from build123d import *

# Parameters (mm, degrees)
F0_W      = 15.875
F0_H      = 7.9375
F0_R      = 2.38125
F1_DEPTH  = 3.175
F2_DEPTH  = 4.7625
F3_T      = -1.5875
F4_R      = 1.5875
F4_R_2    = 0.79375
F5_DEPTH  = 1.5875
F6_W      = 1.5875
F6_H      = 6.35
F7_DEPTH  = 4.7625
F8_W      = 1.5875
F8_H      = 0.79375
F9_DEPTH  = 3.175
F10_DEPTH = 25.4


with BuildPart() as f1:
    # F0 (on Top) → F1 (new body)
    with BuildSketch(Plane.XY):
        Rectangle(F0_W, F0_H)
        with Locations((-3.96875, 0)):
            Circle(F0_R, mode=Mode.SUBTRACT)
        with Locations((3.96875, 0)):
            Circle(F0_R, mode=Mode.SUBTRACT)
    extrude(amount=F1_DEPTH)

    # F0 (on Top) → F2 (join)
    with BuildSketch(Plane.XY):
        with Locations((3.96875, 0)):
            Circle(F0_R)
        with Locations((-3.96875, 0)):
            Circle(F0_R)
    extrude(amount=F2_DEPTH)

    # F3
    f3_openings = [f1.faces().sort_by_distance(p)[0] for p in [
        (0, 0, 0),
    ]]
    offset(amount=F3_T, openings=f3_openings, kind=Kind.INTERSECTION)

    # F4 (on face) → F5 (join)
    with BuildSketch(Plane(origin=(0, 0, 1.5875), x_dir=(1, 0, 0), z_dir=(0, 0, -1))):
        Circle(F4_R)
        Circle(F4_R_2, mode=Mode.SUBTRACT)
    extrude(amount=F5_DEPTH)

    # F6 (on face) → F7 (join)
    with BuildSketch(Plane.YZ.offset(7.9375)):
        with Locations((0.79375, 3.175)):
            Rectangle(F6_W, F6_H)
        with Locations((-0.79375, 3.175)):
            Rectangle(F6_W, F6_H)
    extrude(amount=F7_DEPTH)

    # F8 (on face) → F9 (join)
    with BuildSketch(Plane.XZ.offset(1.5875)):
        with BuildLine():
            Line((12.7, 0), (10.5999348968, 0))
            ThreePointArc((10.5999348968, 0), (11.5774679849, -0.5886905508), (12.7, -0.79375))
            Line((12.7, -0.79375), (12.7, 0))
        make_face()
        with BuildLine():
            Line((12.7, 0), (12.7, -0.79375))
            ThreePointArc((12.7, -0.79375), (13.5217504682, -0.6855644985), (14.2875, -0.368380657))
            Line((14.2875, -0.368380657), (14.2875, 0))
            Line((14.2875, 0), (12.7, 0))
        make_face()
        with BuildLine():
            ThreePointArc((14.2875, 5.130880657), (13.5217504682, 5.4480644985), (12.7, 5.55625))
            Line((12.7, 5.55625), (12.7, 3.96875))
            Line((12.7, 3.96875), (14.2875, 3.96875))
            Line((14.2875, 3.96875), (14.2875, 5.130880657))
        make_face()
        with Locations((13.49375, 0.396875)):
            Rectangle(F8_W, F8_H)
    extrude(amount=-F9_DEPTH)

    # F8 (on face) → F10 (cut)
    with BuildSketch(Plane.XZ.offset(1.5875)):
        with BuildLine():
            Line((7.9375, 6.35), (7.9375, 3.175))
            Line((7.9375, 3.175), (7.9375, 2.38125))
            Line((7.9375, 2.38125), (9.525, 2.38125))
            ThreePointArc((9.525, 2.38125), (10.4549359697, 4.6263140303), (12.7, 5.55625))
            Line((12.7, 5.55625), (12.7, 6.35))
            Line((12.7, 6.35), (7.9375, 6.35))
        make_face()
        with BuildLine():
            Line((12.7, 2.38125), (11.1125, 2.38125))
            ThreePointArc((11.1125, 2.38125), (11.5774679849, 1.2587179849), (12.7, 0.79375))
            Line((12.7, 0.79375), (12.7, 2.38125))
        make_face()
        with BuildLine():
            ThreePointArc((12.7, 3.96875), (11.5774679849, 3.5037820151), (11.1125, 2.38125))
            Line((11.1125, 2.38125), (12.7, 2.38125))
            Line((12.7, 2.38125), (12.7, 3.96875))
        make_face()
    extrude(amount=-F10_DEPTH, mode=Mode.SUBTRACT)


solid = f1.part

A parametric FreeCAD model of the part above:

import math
import FreeCAD as App
import Part
import Sketcher

V = App.Vector
Q = App.Units.Quantity


def faces_at(feature, points):
    """Names of the faces that lie closest to the given points."""
    faces = feature.Shape.Faces
    near = lambda p: min(range(len(faces)), key=lambda i: faces[i].distToShape(Part.Vertex(*p))[0])
    return sorted({f"Face{near(p) + 1}" for p in points})


def add_polygon(sketch, points):
    """Adds a closed chain of lines whose ends are joined by coincident constraints."""
    first, n = sketch.GeometryCount, len(points)
    for a, b in zip(points, points[1:] + points[:1]):
        sketch.addGeometry(Part.LineSegment(App.Vector(*a, 0), App.Vector(*b, 0)), False)
    for i in range(n):
        sketch.addConstraint(Sketcher.Constraint("Coincident", first + i, 2, first + (i + 1) % n, 1))

doc = App.newDocument("Part")
body = doc.addObject("PartDesign::Body", "Body")

sketch1 = body.newObject("Sketcher::SketchObject", "Sketch")
sketch1.AttachmentSupport = (doc.getObject("XY_Plane"), [""])
sketch1.MapMode = "FlatFace"
add_polygon(sketch1, [(-7.9, 4), (-7.9, -4), (7.9, -4), (7.9, 4)])
sketch1.addGeometry(Part.Circle(V(-4, 0, 0), V(0, 0, 1), 2.4), False)
sketch1.addGeometry(Part.Circle(V(4, 0, 0), V(0, 0, 1), 2.4), False)
sketch1.addConstraint(Sketcher.Constraint("Vertical", 0))
sketch1.addConstraint(Sketcher.Constraint("Horizontal", 1))
sketch1.addConstraint(Sketcher.Constraint("Vertical", 2))
sketch1.addConstraint(Sketcher.Constraint("Horizontal", 3))
sketch1.addConstraint(Sketcher.Constraint("Equal", 4, 5))
sketch1.addConstraint(Sketcher.Constraint("Symmetric", 4, 3, 5, 3, -1, 1))
sketch1.addConstraint(Sketcher.Constraint("Symmetric", 0, 2, 2, 2, -1, 1))
sketch1.addConstraint(Sketcher.Constraint("PointOnObject", 4, 3, -1))
sketch1.addConstraint(Sketcher.Constraint("Diameter", 4, Q("0.1875 in")))
sketch1.addConstraint(Sketcher.Constraint("DistanceX", 1, 1, 1, 2, Q("0.625 in")))
sketch1.addConstraint(Sketcher.Constraint("DistanceY", 0, 2, 0, 1, Q("0.3125 in")))
sketch1.addConstraint(Sketcher.Constraint("DistanceX", 4, 3, -1, 1, Q("0.15625 in")))
pad1 = body.newObject("PartDesign::Pad", "Pad")
pad1.Profile = sketch1
pad1.Length = Q("0.125 in")

sketch2 = body.newObject("Sketcher::SketchObject", "Sketch001")
sketch2.AttachmentSupport = (doc.getObject("XY_Plane"), [""])
sketch2.MapMode = "FlatFace"
sketch2.addGeometry(Part.Circle(V(4, 0, 0), V(0, 0, 1), 2.4), False)
sketch2.addGeometry(Part.Circle(V(-4, 0, 0), V(0, 0, 1), 2.4), False)
sketch2.addConstraint(Sketcher.Constraint("Equal", 0, 1))
sketch2.addConstraint(Sketcher.Constraint("Symmetric", 0, 3, 1, 3, -1, 1))
sketch2.addConstraint(Sketcher.Constraint("PointOnObject", 0, 3, -1))
sketch2.addConstraint(Sketcher.Constraint("Diameter", 0, Q("0.1875 in")))
sketch2.addConstraint(Sketcher.Constraint("DistanceX", -1, 1, 0, 3, Q("0.15625 in")))
pad2 = body.newObject("PartDesign::Pad", "Pad001")
pad2.Profile = sketch2
pad2.Length = Q("0.1875 in")
doc.recompute()

thickness = body.newObject("PartDesign::Thickness", "Thickness")
thickness.Base = (pad2, faces_at(pad2, [(0, 0, 0)]))
thickness.Value = Q("0.0625 in")
thickness.Reversed = True
thickness.Join = "Intersection"

sketch3 = body.newObject("Sketcher::SketchObject", "Sketch002")
sketch3.AttachmentSupport = (doc.getObject("XY_Plane"), [""])
sketch3.MapMode = "FlatFace"
sketch3.AttachmentOffset = App.Placement(V(0, 0, 0.0625 * 25.4), App.Rotation())
sketch3.addGeometry(Part.Circle(V(0, 0, 0), V(0, 0, 1), 1.6), False)
sketch3.addGeometry(Part.Circle(V(0, 0, 0), V(0, 0, 1), 0.8), False)
sketch3.addConstraint(Sketcher.Constraint("Coincident", 0, 3, -1, 1))
sketch3.addConstraint(Sketcher.Constraint("Coincident", 1, 3, -1, 1))
sketch3.addConstraint(Sketcher.Constraint("Diameter", 0, Q("0.125 in")))
sketch3.addConstraint(Sketcher.Constraint("Diameter", 1, Q("0.0625 in")))
pad3 = body.newObject("PartDesign::Pad", "Pad002")
pad3.Profile = sketch3
pad3.Length = Q("0.0625 in")
pad3.Reversed = True

sketch4 = body.newObject("Sketcher::SketchObject", "Sketch003")
sketch4.AttachmentSupport = (doc.getObject("YZ_Plane"), [""])
sketch4.MapMode = "FlatFace"
sketch4.AttachmentOffset = App.Placement(V(0, 0, 0.3125 * 25.4), App.Rotation())
add_polygon(sketch4, [(1.6, 0), (1.6, 6.3), (-1.6, 6.3), (-1.6, 0)])
sketch4.addConstraint(Sketcher.Constraint("Vertical", 0))
sketch4.addConstraint(Sketcher.Constraint("Horizontal", 1))
sketch4.addConstraint(Sketcher.Constraint("Vertical", 2))
sketch4.addConstraint(Sketcher.Constraint("Horizontal", 3))
sketch4.addConstraint(Sketcher.Constraint("Symmetric", 2, 2, 3, 2, -1, 1))
sketch4.addConstraint(Sketcher.Constraint("DistanceY", 0, 1, 0, 2, Q("0.25 in")))
sketch4.addConstraint(Sketcher.Constraint("DistanceX", 1, 2, 1, 1, Q("0.125 in")))
pad4 = body.newObject("PartDesign::Pad", "Pad003")
pad4.Profile = sketch4
pad4.Length = Q("0.1875 in")

sketch5 = body.newObject("Sketcher::SketchObject", "Sketch004")
sketch5.AttachmentSupport = (doc.getObject("XZ_Plane"), [""])
sketch5.MapMode = "FlatFace"
sketch5.AttachmentOffset = App.Placement(V(0, 0, 0.0625 * 25.4), App.Rotation())
sketch5.addGeometry(Part.ArcOfCircle(Part.Circle(V(12.7, 2.4, 0), V(0, 0, 1), 3.2), math.radians(-131), math.radians(-90)), False)
sketch5.addGeometry(Part.ArcOfCircle(Part.Circle(V(12.7, 2.4, 0), V(0, 0, 1), 3.2), math.radians(-90), math.radians(-60)), False)
sketch5.addGeometry(Part.LineSegment(V(14.3, -0.4, 0), V(14.3, 0.8, 0)), False)
sketch5.addGeometry(Part.LineSegment(V(14.3, 0.8, 0), V(12.7, 0.8, 0)), False)
sketch5.addGeometry(Part.LineSegment(V(12.7, 0.8, 0), V(12.7, 0, 0)), False)
sketch5.addGeometry(Part.LineSegment(V(12.7, 0, 0), V(10.6, 0, 0)), False)
sketch5.addGeometry(Part.ArcOfCircle(Part.Circle(V(12.7, 2.4, 0), V(0, 0, 1), 3.2), math.radians(60), math.radians(90)), False)
sketch5.addGeometry(Part.LineSegment(V(12.7, 5.6, 0), V(12.7, 4, 0)), False)
sketch5.addGeometry(Part.LineSegment(V(12.7, 4, 0), V(14.3, 4, 0)), False)
sketch5.addGeometry(Part.LineSegment(V(14.3, 4, 0), V(14.3, 5.1, 0)), False)
sketch5.addConstraint(Sketcher.Constraint("Tangent", 0, 2, 1, 1))
sketch5.addConstraint(Sketcher.Constraint("Coincident", 1, 2, 2, 1))
sketch5.addConstraint(Sketcher.Constraint("Coincident", 2, 2, 3, 1))
sketch5.addConstraint(Sketcher.Constraint("Coincident", 3, 2, 4, 1))
sketch5.addConstraint(Sketcher.Constraint("Coincident", 4, 2, 5, 1))
sketch5.addConstraint(Sketcher.Constraint("Coincident", 5, 2, 0, 1))
sketch5.addConstraint(Sketcher.Constraint("Coincident", 6, 2, 7, 1))
sketch5.addConstraint(Sketcher.Constraint("Coincident", 7, 2, 8, 1))
sketch5.addConstraint(Sketcher.Constraint("Coincident", 8, 2, 9, 1))
sketch5.addConstraint(Sketcher.Constraint("Coincident", 9, 2, 6, 1))
sketch5.addConstraint(Sketcher.Constraint("Vertical", 2))
sketch5.addConstraint(Sketcher.Constraint("Horizontal", 3))
sketch5.addConstraint(Sketcher.Constraint("Vertical", 4))
sketch5.addConstraint(Sketcher.Constraint("Horizontal", 5))
sketch5.addConstraint(Sketcher.Constraint("Vertical", 7))
sketch5.addConstraint(Sketcher.Constraint("Horizontal", 8))
sketch5.addConstraint(Sketcher.Constraint("Vertical", 9))
sketch5.addConstraint(Sketcher.Constraint("Coincident", 6, 3, 0, 3))
sketch5.addConstraint(Sketcher.Constraint("Equal", 0, 1))
sketch5.addConstraint(Sketcher.Constraint("Equal", 1, 6))
sketch5.addConstraint(Sketcher.Constraint("Symmetric", 0, 2, 3, 2, -1))
sketch5.addConstraint(Sketcher.Constraint("PointOnObject", 4, 2, -1))
sketch5.addConstraint(Sketcher.Constraint("Vertical", 6, 3, 0, 2))
sketch5.addConstraint(Sketcher.Constraint("Vertical", 4, 2, 6, 2))
sketch5.addConstraint(Sketcher.Constraint("Vertical", 2, 2, 8, 2))
sketch5.addConstraint(Sketcher.Constraint("Equal", 8, 7))
sketch5.addConstraint(Sketcher.Constraint("Equal", 2, 9))
sketch5.addConstraint(Sketcher.Constraint("Radius", 0, Q("0.125 in")))
sketch5.addConstraint(Sketcher.Constraint("DistanceX", -1, 1, 0, 3, Q("0.5 in")))
sketch5.addConstraint(Sketcher.Constraint("DistanceX", 3, 2, 3, 1, Q("0.0625 in")))
pad5 = body.newObject("PartDesign::Pad", "Pad004")
pad5.Profile = sketch5
pad5.Length = Q("0.125 in")
pad5.Reversed = True

sketch6 = body.newObject("Sketcher::SketchObject", "Sketch005")
sketch6.AttachmentSupport = (doc.getObject("XZ_Plane"), [""])
sketch6.MapMode = "FlatFace"
sketch6.AttachmentOffset = App.Placement(V(0, 0, 0.0625 * 25.4), App.Rotation())
sketch6.addGeometry(Part.LineSegment(V(7.9, 6.3, 0), V(7.9, 2.4, 0)), False)
sketch6.addGeometry(Part.LineSegment(V(7.9, 2.4, 0), V(9.5, 2.4, 0)), False)
sketch6.addGeometry(Part.ArcOfCircle(Part.Circle(V(12.7, 2.4, 0), V(0, 0, 1), 3.2), math.radians(90), math.radians(180)), False)
sketch6.addGeometry(Part.LineSegment(V(12.7, 5.6, 0), V(12.7, 6.3, 0)), False)
sketch6.addGeometry(Part.LineSegment(V(12.7, 6.3, 0), V(7.9, 6.3, 0)), False)
sketch6.addGeometry(Part.ArcOfCircle(Part.Circle(V(12.7, 2.4, 0), V(0, 0, 1), 1.6), math.radians(180), math.radians(270)), False)
sketch6.addGeometry(Part.LineSegment(V(12.7, 0.8, 0), V(12.7, 4, 0)), False)
sketch6.addGeometry(Part.ArcOfCircle(Part.Circle(V(12.7, 2.4, 0), V(0, 0, 1), 1.6), math.radians(90), math.radians(180)), False)
sketch6.addConstraint(Sketcher.Constraint("Coincident", 0, 2, 1, 1))
sketch6.addConstraint(Sketcher.Constraint("Coincident", 1, 2, 2, 2))
sketch6.addConstraint(Sketcher.Constraint("Coincident", 2, 1, 3, 1))
sketch6.addConstraint(Sketcher.Constraint("Coincident", 3, 2, 4, 1))
sketch6.addConstraint(Sketcher.Constraint("Coincident", 4, 2, 0, 1))
sketch6.addConstraint(Sketcher.Constraint("Coincident", 5, 2, 6, 1))
sketch6.addConstraint(Sketcher.Constraint("Coincident", 6, 2, 7, 1))
sketch6.addConstraint(Sketcher.Constraint("Tangent", 7, 2, 5, 1))
sketch6.addConstraint(Sketcher.Constraint("Vertical", 0))
sketch6.addConstraint(Sketcher.Constraint("Horizontal", 1))
sketch6.addConstraint(Sketcher.Constraint("Vertical", 3))
sketch6.addConstraint(Sketcher.Constraint("Horizontal", 4))
sketch6.addConstraint(Sketcher.Constraint("Vertical", 6))
sketch6.addConstraint(Sketcher.Constraint("Coincident", 5, 3, 2, 3))
sketch6.addConstraint(Sketcher.Constraint("Equal", 5, 7))
sketch6.addConstraint(Sketcher.Constraint("Horizontal", 7, 3, 0, 2))
sketch6.addConstraint(Sketcher.Constraint("Horizontal", 1, 2, 7, 2))
sketch6.addConstraint(Sketcher.Constraint("Vertical", 7, 3, 2, 1))
sketch6.addConstraint(Sketcher.Constraint("Vertical", 3, 2, 5, 2))
sketch6.addConstraint(Sketcher.Constraint("Radius", 2, Q("0.125 in")))
sketch6.addConstraint(Sketcher.Constraint("Radius", 5, Q("0.0625 in")))
sketch6.addConstraint(Sketcher.Constraint("DistanceX", -1, 1, 2, 3, Q("0.5 in")))
sketch6.addConstraint(Sketcher.Constraint("DistanceX", 1, 1, 1, 2, Q("0.0625 in")))
sketch6.addConstraint(Sketcher.Constraint("DistanceY", 0, 2, 0, 1, Q("0.15625 in")))
sketch6.addConstraint(Sketcher.Constraint("DistanceY", -1, 1, 3, 2, Q("0.25 in")))
pocket1 = body.newObject("PartDesign::Pocket", "Pocket")
pocket1.Profile = sketch6
pocket1.Length = Q("1 in")

doc.recompute()
